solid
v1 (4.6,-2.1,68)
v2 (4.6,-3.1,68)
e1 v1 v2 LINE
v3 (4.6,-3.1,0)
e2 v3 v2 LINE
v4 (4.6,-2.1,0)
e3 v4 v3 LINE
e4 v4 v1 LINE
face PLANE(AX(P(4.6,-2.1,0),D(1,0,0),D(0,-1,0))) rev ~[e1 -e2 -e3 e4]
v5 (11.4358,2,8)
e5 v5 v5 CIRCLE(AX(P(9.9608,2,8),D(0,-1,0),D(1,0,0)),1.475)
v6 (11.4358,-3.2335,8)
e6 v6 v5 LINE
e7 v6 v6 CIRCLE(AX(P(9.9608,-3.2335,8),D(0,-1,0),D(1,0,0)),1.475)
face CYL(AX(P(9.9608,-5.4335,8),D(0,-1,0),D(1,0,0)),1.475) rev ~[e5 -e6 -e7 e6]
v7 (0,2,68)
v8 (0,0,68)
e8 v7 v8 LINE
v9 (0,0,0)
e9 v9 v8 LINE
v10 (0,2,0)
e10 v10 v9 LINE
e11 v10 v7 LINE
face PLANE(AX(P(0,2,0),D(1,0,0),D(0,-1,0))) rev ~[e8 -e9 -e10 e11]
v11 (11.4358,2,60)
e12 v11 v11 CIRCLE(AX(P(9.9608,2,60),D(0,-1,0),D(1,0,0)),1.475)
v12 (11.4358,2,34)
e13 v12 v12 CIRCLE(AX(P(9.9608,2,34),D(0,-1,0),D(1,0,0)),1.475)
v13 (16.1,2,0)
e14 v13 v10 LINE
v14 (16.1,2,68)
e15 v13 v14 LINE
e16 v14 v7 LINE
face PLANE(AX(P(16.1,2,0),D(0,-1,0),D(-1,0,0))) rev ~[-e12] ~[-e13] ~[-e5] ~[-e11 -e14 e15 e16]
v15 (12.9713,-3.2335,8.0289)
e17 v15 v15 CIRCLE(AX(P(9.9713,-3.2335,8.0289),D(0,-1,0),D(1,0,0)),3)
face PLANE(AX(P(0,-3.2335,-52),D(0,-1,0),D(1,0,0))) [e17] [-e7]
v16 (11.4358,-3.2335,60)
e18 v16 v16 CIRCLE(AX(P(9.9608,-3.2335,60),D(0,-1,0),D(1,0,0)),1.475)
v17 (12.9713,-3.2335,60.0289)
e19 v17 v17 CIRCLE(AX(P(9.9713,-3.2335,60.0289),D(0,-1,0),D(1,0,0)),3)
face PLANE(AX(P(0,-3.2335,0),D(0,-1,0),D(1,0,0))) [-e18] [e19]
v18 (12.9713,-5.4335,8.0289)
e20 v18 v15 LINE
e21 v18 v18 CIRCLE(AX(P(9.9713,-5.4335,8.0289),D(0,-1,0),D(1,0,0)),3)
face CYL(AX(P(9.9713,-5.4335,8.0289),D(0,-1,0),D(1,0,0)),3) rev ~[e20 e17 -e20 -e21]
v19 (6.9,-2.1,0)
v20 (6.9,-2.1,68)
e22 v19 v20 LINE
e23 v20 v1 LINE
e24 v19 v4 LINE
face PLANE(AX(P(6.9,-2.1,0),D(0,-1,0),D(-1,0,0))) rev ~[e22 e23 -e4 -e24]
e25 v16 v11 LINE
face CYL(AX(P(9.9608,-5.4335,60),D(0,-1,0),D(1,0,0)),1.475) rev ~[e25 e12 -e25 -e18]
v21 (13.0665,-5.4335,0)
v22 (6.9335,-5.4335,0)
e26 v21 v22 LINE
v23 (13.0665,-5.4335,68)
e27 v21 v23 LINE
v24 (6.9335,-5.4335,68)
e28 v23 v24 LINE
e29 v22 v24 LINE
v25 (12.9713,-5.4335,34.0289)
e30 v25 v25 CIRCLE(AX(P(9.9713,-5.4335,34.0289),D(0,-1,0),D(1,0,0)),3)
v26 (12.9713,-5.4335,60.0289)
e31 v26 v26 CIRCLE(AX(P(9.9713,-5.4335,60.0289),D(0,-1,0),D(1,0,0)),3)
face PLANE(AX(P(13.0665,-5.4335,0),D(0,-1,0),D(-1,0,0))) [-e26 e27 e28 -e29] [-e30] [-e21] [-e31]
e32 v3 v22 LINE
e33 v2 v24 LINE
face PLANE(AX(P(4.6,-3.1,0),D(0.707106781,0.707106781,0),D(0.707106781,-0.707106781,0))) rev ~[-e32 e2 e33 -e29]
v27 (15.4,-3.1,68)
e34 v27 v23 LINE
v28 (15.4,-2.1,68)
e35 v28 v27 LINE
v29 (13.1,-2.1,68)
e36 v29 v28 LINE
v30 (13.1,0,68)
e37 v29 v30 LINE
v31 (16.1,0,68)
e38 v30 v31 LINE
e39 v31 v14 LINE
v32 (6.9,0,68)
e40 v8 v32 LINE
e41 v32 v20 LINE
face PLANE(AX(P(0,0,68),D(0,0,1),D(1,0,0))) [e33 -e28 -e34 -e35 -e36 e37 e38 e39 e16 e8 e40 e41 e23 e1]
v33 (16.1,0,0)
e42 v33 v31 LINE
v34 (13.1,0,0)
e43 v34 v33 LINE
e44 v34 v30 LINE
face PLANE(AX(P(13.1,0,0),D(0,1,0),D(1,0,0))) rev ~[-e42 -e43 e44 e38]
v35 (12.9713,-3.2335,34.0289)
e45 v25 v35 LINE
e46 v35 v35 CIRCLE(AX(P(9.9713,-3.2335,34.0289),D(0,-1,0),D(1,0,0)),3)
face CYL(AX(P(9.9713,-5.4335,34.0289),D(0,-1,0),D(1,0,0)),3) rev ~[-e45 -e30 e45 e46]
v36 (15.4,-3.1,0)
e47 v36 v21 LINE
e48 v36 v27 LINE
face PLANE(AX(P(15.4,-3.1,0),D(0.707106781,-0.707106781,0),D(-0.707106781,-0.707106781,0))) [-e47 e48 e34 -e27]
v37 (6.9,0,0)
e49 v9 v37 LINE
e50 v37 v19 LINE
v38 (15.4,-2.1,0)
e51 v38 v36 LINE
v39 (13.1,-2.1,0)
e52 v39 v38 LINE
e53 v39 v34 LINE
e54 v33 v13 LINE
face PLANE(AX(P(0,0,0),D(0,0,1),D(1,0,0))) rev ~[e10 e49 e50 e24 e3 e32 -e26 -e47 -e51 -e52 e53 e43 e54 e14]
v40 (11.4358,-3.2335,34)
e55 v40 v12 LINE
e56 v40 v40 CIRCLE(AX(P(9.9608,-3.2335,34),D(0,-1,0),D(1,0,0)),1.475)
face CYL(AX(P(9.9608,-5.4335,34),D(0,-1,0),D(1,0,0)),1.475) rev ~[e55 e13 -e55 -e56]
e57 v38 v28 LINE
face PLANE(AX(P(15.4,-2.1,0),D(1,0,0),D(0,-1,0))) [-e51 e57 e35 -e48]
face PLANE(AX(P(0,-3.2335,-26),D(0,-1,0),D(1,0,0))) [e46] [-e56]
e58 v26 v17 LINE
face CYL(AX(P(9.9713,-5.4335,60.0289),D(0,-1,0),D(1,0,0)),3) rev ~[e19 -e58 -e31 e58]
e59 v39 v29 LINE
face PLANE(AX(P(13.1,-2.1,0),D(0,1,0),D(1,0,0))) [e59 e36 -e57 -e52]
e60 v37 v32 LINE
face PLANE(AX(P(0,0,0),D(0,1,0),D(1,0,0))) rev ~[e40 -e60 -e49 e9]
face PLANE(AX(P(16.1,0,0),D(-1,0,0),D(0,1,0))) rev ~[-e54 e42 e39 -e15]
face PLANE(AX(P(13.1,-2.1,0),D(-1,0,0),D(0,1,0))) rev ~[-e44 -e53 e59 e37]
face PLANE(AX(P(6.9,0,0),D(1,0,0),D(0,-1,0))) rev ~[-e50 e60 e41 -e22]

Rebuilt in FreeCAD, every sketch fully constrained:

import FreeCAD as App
import Part
import Sketcher


def add_polygon(sketch, points):
    """Adds a closed chain of lines whose ends are joined by coincident constraints."""
    first, n = sketch.GeometryCount, len(points)
    for a, b in zip(points, points[1:] + points[:1]):
        sketch.addGeometry(Part.LineSegment(App.Vector(*a, 0), App.Vector(*b, 0)), False)
    for i in range(n):
        sketch.addConstraint(Sketcher.Constraint("Coincident", first + i, 2, first + (i + 1) % n, 1))

doc = App.newDocument("Part")
body = doc.addObject("PartDesign::Body", "Body")

# Sketch on XY plane
sketch1 = body.newObject("Sketcher::SketchObject", "Sketch")
sketch1.AttachmentSupport = (doc.getObject("XY_Plane"), [""])
sketch1.MapMode = "FlatFace"
add_polygon(sketch1, [(0, 2), (0, 0), (6.9, 0), (6.9, -2.1), (4.6, -2.1), (4.6, -3.1), (6.9335, -5.4335), (13.0665, -5.4335), (15.4, -3.1), (15.4, -2.1), (13.1, -2.1), (13.1, 0), (16.1, 0), (16.1, 2)])  # lines 0-13
sketch1.addConstraint([
    Sketcher.Constraint("Vertical", 0),
    Sketcher.Constraint("Horizontal", 1),
    Sketcher.Constraint("Vertical", 2),
    Sketcher.Constraint("Horizontal", 3),
    Sketcher.Constraint("Vertical", 4),
    Sketcher.Constraint("Horizontal", 6),
    Sketcher.Constraint("Vertical", 8),
    Sketcher.Constraint("Horizontal", 9),
    Sketcher.Constraint("Vertical", 10),
    Sketcher.Constraint("Horizontal", 11),
    Sketcher.Constraint("Vertical", 12),
    Sketcher.Constraint("Horizontal", 13),
    Sketcher.Constraint("Coincident", 0, 2, -1, 1),
    Sketcher.Constraint("PointOnObject", 10, 2, -1),
    Sketcher.Constraint("Perpendicular", 5, 7),
    Sketcher.Constraint("Horizontal", 4, 2, 7, 2),
    Sketcher.Constraint("Horizontal", 3, 2, 8, 2),
    Sketcher.Constraint("Equal", 3, 9),
    Sketcher.Constraint("Equal", 5, 7),
    Sketcher.Constraint("DistanceX", 11, 1, 11, 2, 3.0),
    Sketcher.Constraint("DistanceY", 4, 2, 4, 1, 1.0),
    Sketcher.Constraint("DistanceX", 1, 1, 1, 2, 6.9),
    Sketcher.Constraint("DistanceX", 3, 2, 3, 1, 2.3),
    Sketcher.Constraint("DistanceY", 2, 2, 2, 1, 2.1),
    Sketcher.Constraint("Distance", 5, 3.3),
    Sketcher.Constraint("DistanceX", 2, 2, 9, 2, 6.2),
    Sketcher.Constraint("DistanceY", 0, 2, 0, 1, 2.0),
])
pad1 = body.newObject("PartDesign::Pad", "Pad")
pad1.Profile = sketch1
pad1.Length = 68

# Sketch on XZ plane
sketch2 = body.newObject("Sketcher::SketchObject", "Sketch001")
sketch2.AttachmentSupport = (doc.getObject("XZ_Plane"), [""])
sketch2.MapMode = "FlatFace"
sketch2.AttachmentOffset = App.Placement(App.Vector(0, 0, 5.4335), App.Rotation())
sketch2.addGeometry(Part.Circle(App.Vector(9.9608, 60, 0), App.Vector(0, 0, 1), 1.475), False)
sketch2.addConstraint([
    Sketcher.Constraint("Diameter", 0, 2.95),
    Sketcher.Constraint("DistanceY", -1, 1, 0, 3, 60.0),
    Sketcher.Constraint("DistanceX", -1, 1, 0, 3, 9.9608),
])
pocket1 = body.newObject("PartDesign::Pocket", "Pocket")
pocket1.Profile = sketch2
pocket1.Length = 10
doc.recompute()

linearpattern = body.newObject("PartDesign::LinearPattern", "LinearPattern")
linearpattern.Originals = [pocket1]
linearpattern.Direction = (doc.getObject("Z_Axis"), [""])
linearpattern.Mode = "offset"
linearpattern.Offset = 26
linearpattern.Occurrences = 3
linearpattern.Reversed = True
body.Tip = linearpattern

# Sketch on XZ plane
sketch3 = body.newObject("Sketcher::SketchObject", "Sketch002")
sketch3.AttachmentSupport = (doc.getObject("XZ_Plane"), [""])
sketch3.MapMode = "FlatFace"
sketch3.AttachmentOffset = App.Placement(App.Vector(0, 0, 5.4335), App.Rotation())
sketch3.addGeometry(Part.Circle(App.Vector(9.9713, 60.0289, 0), App.Vector(0, 0, 1), 3), False)
sketch3.addConstraint([
    Sketcher.Constraint("Diameter", 0, 6.0),
    Sketcher.Constraint("DistanceY", -1, 1, 0, 3, 60.029),
    Sketcher.Constraint("DistanceX", -1, 1, 0, 3, 9.9713),
])
pocket2 = body.newObject("PartDesign::Pocket", "Pocket001")
pocket2.Profile = sketch3
pocket2.Length = 2.2
doc.recompute()

linearpattern2 = body.newObject("PartDesign::LinearPattern", "LinearPattern001")
linearpattern2.Originals = [pocket2]
linearpattern2.Direction = (doc.getObject("Z_Axis"), [""])
linearpattern2.Mode = "offset"
linearpattern2.Offset = 26
linearpattern2.Occurrences = 3
linearpattern2.Reversed = True
body.Tip = linearpattern2

doc.recompute()
